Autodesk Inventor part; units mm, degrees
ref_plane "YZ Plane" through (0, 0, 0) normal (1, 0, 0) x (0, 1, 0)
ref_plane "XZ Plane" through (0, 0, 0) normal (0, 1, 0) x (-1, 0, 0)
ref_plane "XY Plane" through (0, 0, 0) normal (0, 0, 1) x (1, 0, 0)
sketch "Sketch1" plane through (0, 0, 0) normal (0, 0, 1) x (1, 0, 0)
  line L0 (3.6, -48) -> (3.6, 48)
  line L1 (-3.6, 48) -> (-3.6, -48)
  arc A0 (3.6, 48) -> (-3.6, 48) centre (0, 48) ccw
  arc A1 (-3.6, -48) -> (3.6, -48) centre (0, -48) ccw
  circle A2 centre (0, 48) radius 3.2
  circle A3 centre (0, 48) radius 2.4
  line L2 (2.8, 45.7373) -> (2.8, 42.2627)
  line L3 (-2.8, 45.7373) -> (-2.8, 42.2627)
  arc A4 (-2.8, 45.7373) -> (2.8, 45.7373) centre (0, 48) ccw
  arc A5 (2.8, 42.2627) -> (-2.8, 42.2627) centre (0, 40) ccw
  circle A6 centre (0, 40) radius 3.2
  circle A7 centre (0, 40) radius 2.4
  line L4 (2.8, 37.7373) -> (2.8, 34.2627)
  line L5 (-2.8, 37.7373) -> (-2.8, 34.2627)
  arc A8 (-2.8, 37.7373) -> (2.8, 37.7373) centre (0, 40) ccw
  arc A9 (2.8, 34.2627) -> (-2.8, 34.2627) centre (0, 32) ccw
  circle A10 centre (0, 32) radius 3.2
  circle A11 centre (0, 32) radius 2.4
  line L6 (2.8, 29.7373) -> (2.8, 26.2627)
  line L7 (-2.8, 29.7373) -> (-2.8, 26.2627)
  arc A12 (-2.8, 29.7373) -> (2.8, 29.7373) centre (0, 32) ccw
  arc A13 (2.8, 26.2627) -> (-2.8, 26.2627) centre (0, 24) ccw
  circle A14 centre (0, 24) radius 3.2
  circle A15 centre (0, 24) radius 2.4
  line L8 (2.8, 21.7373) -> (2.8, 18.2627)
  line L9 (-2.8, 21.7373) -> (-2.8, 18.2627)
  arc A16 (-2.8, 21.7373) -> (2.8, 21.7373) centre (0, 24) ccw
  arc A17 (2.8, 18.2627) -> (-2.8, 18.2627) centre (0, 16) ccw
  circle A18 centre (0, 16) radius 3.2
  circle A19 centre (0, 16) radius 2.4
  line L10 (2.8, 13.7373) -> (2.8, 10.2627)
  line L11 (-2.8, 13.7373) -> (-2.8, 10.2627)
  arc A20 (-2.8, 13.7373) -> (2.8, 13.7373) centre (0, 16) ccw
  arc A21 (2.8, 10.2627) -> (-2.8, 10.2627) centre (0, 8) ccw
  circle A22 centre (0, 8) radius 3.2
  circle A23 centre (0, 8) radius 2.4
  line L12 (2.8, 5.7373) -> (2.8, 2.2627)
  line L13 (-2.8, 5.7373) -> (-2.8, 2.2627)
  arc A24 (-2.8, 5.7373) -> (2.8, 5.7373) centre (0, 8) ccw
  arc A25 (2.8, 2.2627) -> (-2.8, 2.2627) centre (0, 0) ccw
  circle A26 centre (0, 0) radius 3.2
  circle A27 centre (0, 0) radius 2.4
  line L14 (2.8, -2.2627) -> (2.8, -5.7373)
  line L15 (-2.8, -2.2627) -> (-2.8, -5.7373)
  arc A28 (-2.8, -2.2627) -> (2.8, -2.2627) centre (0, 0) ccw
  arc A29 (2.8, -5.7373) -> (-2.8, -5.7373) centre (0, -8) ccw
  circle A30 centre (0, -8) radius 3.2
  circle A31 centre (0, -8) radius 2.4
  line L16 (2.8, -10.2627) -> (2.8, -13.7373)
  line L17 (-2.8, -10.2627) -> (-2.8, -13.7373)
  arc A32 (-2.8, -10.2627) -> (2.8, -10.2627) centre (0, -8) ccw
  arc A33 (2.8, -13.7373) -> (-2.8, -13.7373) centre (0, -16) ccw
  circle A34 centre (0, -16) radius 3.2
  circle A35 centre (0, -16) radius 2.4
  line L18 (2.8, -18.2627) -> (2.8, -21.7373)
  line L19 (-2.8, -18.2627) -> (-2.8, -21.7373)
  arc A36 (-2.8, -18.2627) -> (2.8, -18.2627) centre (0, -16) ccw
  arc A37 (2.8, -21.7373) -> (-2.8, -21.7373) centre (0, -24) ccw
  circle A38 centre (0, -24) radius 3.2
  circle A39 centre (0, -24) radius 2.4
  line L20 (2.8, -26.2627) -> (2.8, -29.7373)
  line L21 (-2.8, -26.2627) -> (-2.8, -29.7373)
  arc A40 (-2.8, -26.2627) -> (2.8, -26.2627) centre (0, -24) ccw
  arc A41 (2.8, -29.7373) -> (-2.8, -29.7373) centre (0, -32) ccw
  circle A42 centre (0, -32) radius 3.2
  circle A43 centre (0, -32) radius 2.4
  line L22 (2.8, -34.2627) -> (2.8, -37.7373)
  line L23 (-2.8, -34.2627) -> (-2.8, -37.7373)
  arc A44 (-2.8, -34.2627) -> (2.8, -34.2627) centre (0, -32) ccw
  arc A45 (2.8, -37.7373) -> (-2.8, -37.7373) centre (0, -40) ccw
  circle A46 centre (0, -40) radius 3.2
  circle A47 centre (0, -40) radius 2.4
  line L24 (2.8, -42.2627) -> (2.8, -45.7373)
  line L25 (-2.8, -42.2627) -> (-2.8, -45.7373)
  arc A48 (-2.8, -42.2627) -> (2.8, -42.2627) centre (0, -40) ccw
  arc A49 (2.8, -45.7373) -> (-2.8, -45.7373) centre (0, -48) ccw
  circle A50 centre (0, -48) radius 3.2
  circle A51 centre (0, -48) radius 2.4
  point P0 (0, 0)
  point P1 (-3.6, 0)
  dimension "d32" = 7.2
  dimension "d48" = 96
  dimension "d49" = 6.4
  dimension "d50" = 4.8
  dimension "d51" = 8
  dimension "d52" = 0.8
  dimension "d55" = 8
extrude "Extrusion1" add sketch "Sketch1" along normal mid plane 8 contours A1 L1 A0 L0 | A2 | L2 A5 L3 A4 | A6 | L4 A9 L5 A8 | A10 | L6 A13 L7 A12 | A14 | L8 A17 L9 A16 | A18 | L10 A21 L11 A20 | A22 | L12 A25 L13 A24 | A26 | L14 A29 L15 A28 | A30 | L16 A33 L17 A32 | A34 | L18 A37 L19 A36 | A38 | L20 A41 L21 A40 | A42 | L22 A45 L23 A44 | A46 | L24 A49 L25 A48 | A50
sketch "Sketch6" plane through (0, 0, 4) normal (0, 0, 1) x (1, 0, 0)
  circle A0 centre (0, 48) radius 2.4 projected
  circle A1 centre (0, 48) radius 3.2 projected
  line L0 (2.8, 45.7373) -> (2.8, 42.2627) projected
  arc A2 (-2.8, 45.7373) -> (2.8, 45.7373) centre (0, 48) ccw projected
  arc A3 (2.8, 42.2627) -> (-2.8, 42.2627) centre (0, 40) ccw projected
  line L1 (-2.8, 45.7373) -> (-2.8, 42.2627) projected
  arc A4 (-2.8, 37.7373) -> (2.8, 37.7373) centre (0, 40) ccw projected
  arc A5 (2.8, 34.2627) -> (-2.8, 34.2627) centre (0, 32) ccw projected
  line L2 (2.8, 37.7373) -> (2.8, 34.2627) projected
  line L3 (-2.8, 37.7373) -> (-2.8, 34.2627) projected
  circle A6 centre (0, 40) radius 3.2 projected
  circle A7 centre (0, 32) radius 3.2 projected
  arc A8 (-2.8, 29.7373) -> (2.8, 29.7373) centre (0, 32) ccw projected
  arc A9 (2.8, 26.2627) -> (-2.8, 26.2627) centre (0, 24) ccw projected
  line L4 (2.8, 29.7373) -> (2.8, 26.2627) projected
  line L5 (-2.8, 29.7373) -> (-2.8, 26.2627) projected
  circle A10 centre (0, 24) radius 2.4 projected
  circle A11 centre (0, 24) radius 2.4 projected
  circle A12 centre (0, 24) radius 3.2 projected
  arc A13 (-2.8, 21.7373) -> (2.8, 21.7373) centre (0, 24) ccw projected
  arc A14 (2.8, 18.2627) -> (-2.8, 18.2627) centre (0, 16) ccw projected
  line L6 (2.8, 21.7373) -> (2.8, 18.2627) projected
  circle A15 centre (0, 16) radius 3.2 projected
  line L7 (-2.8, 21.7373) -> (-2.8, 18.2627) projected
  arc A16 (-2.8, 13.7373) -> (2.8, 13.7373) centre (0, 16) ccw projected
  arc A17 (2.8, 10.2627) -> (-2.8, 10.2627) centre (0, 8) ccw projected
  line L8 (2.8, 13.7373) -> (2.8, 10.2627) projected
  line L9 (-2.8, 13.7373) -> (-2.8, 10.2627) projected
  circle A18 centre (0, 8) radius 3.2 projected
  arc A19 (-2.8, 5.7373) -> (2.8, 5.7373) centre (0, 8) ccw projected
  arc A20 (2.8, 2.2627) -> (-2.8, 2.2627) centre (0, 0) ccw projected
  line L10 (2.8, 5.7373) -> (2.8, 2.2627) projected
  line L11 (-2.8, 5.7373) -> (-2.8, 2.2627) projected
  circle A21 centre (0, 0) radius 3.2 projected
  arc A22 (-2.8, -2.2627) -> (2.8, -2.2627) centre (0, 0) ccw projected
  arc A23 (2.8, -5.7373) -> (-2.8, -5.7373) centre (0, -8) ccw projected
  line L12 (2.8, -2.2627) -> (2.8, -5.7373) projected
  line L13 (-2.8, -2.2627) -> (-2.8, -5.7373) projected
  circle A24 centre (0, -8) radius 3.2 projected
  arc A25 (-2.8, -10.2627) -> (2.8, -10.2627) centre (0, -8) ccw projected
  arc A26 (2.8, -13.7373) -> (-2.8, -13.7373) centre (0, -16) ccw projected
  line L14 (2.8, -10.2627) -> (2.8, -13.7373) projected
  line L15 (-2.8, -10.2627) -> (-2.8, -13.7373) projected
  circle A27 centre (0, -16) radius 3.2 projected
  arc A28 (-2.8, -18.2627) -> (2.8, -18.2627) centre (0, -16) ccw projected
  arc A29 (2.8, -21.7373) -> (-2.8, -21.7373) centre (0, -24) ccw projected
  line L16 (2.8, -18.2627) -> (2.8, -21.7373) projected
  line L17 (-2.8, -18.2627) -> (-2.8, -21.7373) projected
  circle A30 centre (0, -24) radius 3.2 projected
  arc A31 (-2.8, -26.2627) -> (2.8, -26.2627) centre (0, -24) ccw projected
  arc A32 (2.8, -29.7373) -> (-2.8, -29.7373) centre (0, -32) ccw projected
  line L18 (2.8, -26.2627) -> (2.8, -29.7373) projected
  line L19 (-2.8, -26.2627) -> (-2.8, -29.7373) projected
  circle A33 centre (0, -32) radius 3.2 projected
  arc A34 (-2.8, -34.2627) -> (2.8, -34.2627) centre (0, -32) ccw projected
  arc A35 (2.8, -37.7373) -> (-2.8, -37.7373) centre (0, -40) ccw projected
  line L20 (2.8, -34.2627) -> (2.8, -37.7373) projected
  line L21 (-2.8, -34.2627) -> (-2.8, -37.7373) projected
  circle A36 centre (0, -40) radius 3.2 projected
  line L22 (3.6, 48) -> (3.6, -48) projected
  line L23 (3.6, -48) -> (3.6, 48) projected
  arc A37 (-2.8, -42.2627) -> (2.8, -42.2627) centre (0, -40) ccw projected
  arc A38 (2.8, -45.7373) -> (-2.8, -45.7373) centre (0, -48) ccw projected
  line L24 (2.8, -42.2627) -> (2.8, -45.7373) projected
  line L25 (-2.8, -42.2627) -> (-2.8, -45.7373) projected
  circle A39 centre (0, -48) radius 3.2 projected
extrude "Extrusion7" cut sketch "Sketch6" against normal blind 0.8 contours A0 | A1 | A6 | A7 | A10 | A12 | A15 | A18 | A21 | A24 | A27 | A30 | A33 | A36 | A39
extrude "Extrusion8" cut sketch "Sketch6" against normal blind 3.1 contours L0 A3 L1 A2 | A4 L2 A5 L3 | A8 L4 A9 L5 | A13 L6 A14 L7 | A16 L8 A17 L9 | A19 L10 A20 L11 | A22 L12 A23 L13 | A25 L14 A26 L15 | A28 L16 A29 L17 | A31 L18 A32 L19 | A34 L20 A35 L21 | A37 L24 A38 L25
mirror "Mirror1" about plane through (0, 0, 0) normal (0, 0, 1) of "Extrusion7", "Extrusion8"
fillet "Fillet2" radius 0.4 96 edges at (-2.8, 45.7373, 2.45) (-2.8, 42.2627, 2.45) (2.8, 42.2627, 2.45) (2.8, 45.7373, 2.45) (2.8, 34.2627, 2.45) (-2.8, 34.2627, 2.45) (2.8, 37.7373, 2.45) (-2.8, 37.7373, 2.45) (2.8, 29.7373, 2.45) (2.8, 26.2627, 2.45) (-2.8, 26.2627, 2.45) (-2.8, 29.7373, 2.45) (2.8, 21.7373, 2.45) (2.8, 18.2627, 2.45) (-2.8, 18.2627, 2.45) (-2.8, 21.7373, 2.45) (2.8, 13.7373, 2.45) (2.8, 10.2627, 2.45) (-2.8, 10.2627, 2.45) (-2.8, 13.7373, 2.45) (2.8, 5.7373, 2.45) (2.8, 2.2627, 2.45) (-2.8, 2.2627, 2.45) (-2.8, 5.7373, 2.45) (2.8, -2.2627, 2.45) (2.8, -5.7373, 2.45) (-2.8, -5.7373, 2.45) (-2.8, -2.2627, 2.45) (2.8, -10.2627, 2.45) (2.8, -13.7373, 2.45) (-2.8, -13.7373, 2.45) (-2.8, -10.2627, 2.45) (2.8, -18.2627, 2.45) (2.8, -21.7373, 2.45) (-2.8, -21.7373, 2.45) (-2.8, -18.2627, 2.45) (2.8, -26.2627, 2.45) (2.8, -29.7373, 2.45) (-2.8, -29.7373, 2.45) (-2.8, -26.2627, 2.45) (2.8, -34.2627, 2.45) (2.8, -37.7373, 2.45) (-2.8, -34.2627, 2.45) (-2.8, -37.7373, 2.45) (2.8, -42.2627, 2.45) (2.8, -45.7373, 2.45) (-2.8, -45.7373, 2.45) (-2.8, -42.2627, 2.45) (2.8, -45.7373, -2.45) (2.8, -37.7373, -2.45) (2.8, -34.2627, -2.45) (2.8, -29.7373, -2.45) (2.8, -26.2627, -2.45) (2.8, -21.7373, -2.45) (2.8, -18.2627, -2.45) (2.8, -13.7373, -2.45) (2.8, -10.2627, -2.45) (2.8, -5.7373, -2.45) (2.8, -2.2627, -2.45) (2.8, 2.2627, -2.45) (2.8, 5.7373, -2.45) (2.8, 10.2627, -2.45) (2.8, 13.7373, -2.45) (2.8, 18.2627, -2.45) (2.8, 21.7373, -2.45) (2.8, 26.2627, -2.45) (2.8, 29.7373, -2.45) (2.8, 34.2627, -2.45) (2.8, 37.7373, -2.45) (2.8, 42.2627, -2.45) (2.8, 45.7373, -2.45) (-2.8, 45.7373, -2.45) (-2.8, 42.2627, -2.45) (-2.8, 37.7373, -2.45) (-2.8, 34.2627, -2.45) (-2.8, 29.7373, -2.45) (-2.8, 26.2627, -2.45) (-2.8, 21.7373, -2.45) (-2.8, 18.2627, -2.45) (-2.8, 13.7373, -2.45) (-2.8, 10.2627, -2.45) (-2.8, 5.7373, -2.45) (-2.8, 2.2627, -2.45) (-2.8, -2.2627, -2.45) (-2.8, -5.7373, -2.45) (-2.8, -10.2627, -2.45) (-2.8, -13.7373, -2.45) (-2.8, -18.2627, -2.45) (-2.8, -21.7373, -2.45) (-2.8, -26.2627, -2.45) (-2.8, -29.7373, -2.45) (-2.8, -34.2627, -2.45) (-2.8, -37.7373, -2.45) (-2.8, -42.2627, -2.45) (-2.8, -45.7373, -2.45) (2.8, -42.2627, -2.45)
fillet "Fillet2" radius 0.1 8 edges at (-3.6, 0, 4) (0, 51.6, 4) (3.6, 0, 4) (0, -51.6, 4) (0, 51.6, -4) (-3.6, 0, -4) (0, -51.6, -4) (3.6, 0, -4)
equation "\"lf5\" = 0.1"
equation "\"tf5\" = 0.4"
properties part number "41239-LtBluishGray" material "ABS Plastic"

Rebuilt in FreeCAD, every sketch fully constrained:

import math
import FreeCAD as App
import Part
import Sketcher


def edges_at(feature, points):
    """Names of the edges that pass closest to the given points."""
    edges = feature.Shape.Edges
    near = lambda p: min(range(len(edges)), key=lambda i: edges[i].distToShape(Part.Vertex(*p))[0])
    return sorted({f"Edge{near(p) + 1}" for p in points})

doc = App.newDocument("Part")
body = doc.addObject("PartDesign::Body", "Body")

sketch1 = body.newObject("Sketcher::SketchObject", "Sketch")
sketch1.AttachmentSupport = (doc.getObject("XY_Plane"), [""])
sketch1.MapMode = "FlatFace"
sketch1.addGeometry([
    Part.ArcOfCircle(Part.Circle(App.Vector(0, -48, 0), App.Vector(0, 0, 1), 3.6), math.radians(180), math.radians(360)),
    Part.LineSegment(App.Vector(3.6, -48, 0), App.Vector(3.6, 48, 0)),
    Part.ArcOfCircle(Part.Circle(App.Vector(0, 48, 0), App.Vector(0, 0, 1), 3.6), math.radians(0), math.radians(180)),
    Part.LineSegment(App.Vector(-3.6, 48, 0), App.Vector(-3.6, -48, 0)),
    Part.Circle(App.Vector(0, -48, 0), App.Vector(0, 0, 1), 2.4),
    Part.Circle(App.Vector(0, -40, 0), App.Vector(0, 0, 1), 2.4),
    Part.Circle(App.Vector(0, -32, 0), App.Vector(0, 0, 1), 2.4),
    Part.Circle(App.Vector(0, -24, 0), App.Vector(0, 0, 1), 2.4),
    Part.Circle(App.Vector(0, -16, 0), App.Vector(0, 0, 1), 2.4),
    Part.Circle(App.Vector(0, -8, 0), App.Vector(0, 0, 1), 2.4),
    Part.Circle(App.Vector(0, 0, 0), App.Vector(0, 0, 1), 2.4),
    Part.Circle(App.Vector(0, 8, 0), App.Vector(0, 0, 1), 2.4),
    Part.Circle(App.Vector(0, 16, 0), App.Vector(0, 0, 1), 2.4),
    Part.Circle(App.Vector(0, 24, 0), App.Vector(0, 0, 1), 2.4),
    Part.Circle(App.Vector(0, 32, 0), App.Vector(0, 0, 1), 2.4),
    Part.Circle(App.Vector(0, 40, 0), App.Vector(0, 0, 1), 2.4),
    Part.Circle(App.Vector(0, 48, 0), App.Vector(0, 0, 1), 2.4),
], False)
sketch1.addConstraint([
    Sketcher.Constraint("Tangent", 0, 2, 1, 1),
    Sketcher.Constraint("Tangent", 1, 2, 2, 1),
    Sketcher.Constraint("Tangent", 2, 2, 3, 1),
    Sketcher.Constraint("Tangent", 3, 2, 0, 1),
    Sketcher.Constraint("Vertical", 1),
    Sketcher.Constraint("Vertical", 3),
    Sketcher.Constraint("Coincident", 10, 3, -1, 1),
    Sketcher.Constraint("Coincident", 4, 3, 0, 3),
    Sketcher.Constraint("Coincident", 16, 3, 2, 3),
    Sketcher.Constraint("Equal", 4, 5),
    Sketcher.Constraint("Equal", 5, 6),
    Sketcher.Constraint("Equal", 6, 7),
    Sketcher.Constraint("Equal", 7, 8),
    Sketcher.Constraint("Equal", 8, 9),
    Sketcher.Constraint("Equal", 9, 10),
    Sketcher.Constraint("Equal", 10, 11),
    Sketcher.Constraint("Equal", 11, 12),
    Sketcher.Constraint("Equal", 12, 13),
    Sketcher.Constraint("Equal", 13, 14),
    Sketcher.Constraint("Equal", 14, 15),
    Sketcher.Constraint("Equal", 15, 16),
    Sketcher.Constraint("Symmetric", 0, 3, 2, 3, -1, 1),
    Sketcher.Constraint("Symmetric", 9, 3, 11, 3, -1, 1),
    Sketcher.Constraint("Symmetric", 8, 3, 12, 3, -1, 1),
    Sketcher.Constraint("Symmetric", 7, 3, 13, 3, -1, 1),
    Sketcher.Constraint("Symmetric", 6, 3, 14, 3, -1, 1),
    Sketcher.Constraint("Symmetric", 5, 3, 15, 3, -1, 1),
    Sketcher.Constraint("PointOnObject", 5, 3, -2),
    Sketcher.Constraint("PointOnObject", 6, 3, -2),
    Sketcher.Constraint("PointOnObject", 7, 3, -2),
    Sketcher.Constraint("PointOnObject", 8, 3, -2),
    Sketcher.Constraint("PointOnObject", 9, 3, -2),
    Sketcher.Constraint("Diameter", 4, 4.8),
    Sketcher.Constraint("Radius", 0, 3.6),
    Sketcher.Constraint("DistanceY", 1, 1, 1, 2, 96.0),
    Sketcher.Constraint("DistanceY", 9, 3, -1, 1, 8.0),
    Sketcher.Constraint("DistanceY", 0, 3, 5, 3, 8.0),
    Sketcher.Constraint("DistanceY", 5, 3, 6, 3, 8.0),
    Sketcher.Constraint("DistanceY", 6, 3, 7, 3, 8.0),
    Sketcher.Constraint("DistanceY", 7, 3, 8, 3, 8.0),
])
pad1 = body.newObject("PartDesign::Pad", "Pad")
pad1.Profile = sketch1
pad1.Length = 8
pad1.Midplane = True

sketch2 = body.newObject("Sketcher::SketchObject", "Sketch001")
sketch2.AttachmentSupport = (doc.getObject("XY_Plane"), [""])
sketch2.MapMode = "FlatFace"
sketch2.AttachmentOffset = App.Placement(App.Vector(0, 0, 4), App.Rotation())
sketch2.addGeometry([
    Part.Circle(App.Vector(0, 48, 0), App.Vector(0, 0, 1), 3.2),
    Part.Circle(App.Vector(0, 40, 0), App.Vector(0, 0, 1), 3.2),
    Part.Circle(App.Vector(0, 32, 0), App.Vector(0, 0, 1), 3.2),
    Part.Circle(App.Vector(0, 24, 0), App.Vector(0, 0, 1), 3.2),
    Part.Circle(App.Vector(0, 16, 0), App.Vector(0, 0, 1), 3.2),
    Part.Circle(App.Vector(0, 8, 0), App.Vector(0, 0, 1), 3.2),
    Part.Circle(App.Vector(0, 0, 0), App.Vector(0, 0, 1), 3.2),
    Part.Circle(App.Vector(0, -8, 0), App.Vector(0, 0, 1), 3.2),
    Part.Circle(App.Vector(0, -16, 0), App.Vector(0, 0, 1), 3.2),
    Part.Circle(App.Vector(0, -24, 0), App.Vector(0, 0, 1), 3.2),
    Part.Circle(App.Vector(0, -32, 0), App.Vector(0, 0, 1), 3.2),
    Part.Circle(App.Vector(0, -40, 0), App.Vector(0, 0, 1), 3.2),
    Part.Circle(App.Vector(0, -48, 0), App.Vector(0, 0, 1), 3.2),
], False)
sketch2.addConstraint([
    Sketcher.Constraint("Coincident", 6, 3, -1, 1),
    Sketcher.Constraint("Equal", 0, 1),
    Sketcher.Constraint("Equal", 1, 2),
    Sketcher.Constraint("Equal", 2, 3),
    Sketcher.Constraint("Equal", 3, 4),
    Sketcher.Constraint("Equal", 4, 5),
    Sketcher.Constraint("Equal", 5, 6),
    Sketcher.Constraint("Equal", 6, 7),
    Sketcher.Constraint("Equal", 7, 8),
    Sketcher.Constraint("Equal", 8, 9),
    Sketcher.Constraint("Equal", 9, 10),
    Sketcher.Constraint("Equal", 10, 11),
    Sketcher.Constraint("Equal", 11, 12),
    Sketcher.Constraint("Symmetric", 5, 3, 7, 3, -1, 1),
    Sketcher.Constraint("Symmetric", 4, 3, 8, 3, -1, 1),
    Sketcher.Constraint("Symmetric", 3, 3, 9, 3, -1, 1),
    Sketcher.Constraint("Symmetric", 2, 3, 10, 3, -1, 1),
    Sketcher.Constraint("Symmetric", 1, 3, 11, 3, -1, 1),
    Sketcher.Constraint("Symmetric", 0, 3, 12, 3, -1, 1),
    Sketcher.Constraint("PointOnObject", 0, 3, -2),
    Sketcher.Constraint("PointOnObject", 1, 3, -2),
    Sketcher.Constraint("PointOnObject", 2, 3, -2),
    Sketcher.Constraint("PointOnObject", 3, 3, -2),
    Sketcher.Constraint("PointOnObject", 4, 3, -2),
    Sketcher.Constraint("PointOnObject", 5, 3, -2),
    Sketcher.Constraint("Diameter", 0, 6.4),
    Sketcher.Constraint("DistanceY", -1, 1, 0, 3, 48.0),
    Sketcher.Constraint("DistanceY", -1, 1, 1, 3, 40.0),
    Sketcher.Constraint("DistanceY", -1, 1, 2, 3, 32.0),
    Sketcher.Constraint("DistanceY", -1, 1, 3, 3, 24.0),
    Sketcher.Constraint("DistanceY", -1, 1, 4, 3, 16.0),
    Sketcher.Constraint("DistanceY", -1, 1, 5, 3, 8.0),
])
pocket1 = body.newObject("PartDesign::Pocket", "Pocket")
pocket1.Profile = sketch2
pocket1.Length = 0.8

sketch3 = body.newObject("Sketcher::SketchObject", "Sketch002")
sketch3.AttachmentSupport = (doc.getObject("XY_Plane"), [""])
sketch3.MapMode = "FlatFace"
sketch3.AttachmentOffset = App.Placement(App.Vector(0, 0, 4), App.Rotation())
sketch3.addGeometry([
    Part.LineSegment(App.Vector(2.8, 42.2627, 0), App.Vector(2.8, 45.7373, 0)),
    Part.ArcOfCircle(Part.Circle(App.Vector(0, 48, 0), App.Vector(0, 0, 1), 3.599974), math.radians(-141.058075), math.radians(-38.941925)),
    Part.LineSegment(App.Vector(-2.8, 45.7373, 0), App.Vector(-2.8, 42.2627, 0)),
    Part.ArcOfCircle(Part.Circle(App.Vector(0, 40, 0), App.Vector(0, 0, 1), 3.599974), math.radians(38.941925), math.radians(141.058075)),
    Part.ArcOfCircle(Part.Circle(App.Vector(0, 40, 0), App.Vector(0, 0, 1), 3.599974), math.radians(-141.058075), math.radians(-38.941925)),
    Part.LineSegment(App.Vector(-2.8, 37.7373, 0), App.Vector(-2.8, 34.2627, 0)),
    Part.ArcOfCircle(Part.Circle(App.Vector(0, 32, 0), App.Vector(0, 0, 1), 3.599974), math.radians(38.941925), math.radians(141.058075)),
    Part.LineSegment(App.Vector(2.8, 34.2627, 0), App.Vector(2.8, 37.7373, 0)),
    Part.ArcOfCircle(Part.Circle(App.Vector(0, 32, 0), App.Vector(0, 0, 1), 3.599974), math.radians(-141.058075), math.radians(-38.941925)),
    Part.LineSegment(App.Vector(-2.8, 29.7373, 0), App.Vector(-2.8, 26.2627, 0)),
    Part.ArcOfCircle(Part.Circle(App.Vector(0, 24, 0), App.Vector(0, 0, 1), 3.599974), math.radians(38.941925), math.radians(141.058075)),
    Part.LineSegment(App.Vector(2.8, 26.2627, 0), App.Vector(2.8, 29.7373, 0)),
    Part.ArcOfCircle(Part.Circle(App.Vector(0, 24, 0), App.Vector(0, 0, 1), 3.599974), math.radians(-141.058075), math.radians(-38.941925)),
    Part.LineSegment(App.Vector(-2.8, 21.7373, 0), App.Vector(-2.8, 18.2627, 0)),
    Part.ArcOfCircle(Part.Circle(App.Vector(0, 16, 0), App.Vector(0, 0, 1), 3.599974), math.radians(38.941925), math.radians(141.058075)),
    Part.LineSegment(App.Vector(2.8, 18.2627, 0), App.Vector(2.8, 21.7373, 0)),
    Part.ArcOfCircle(Part.Circle(App.Vector(0, 16, 0), App.Vector(0, 0, 1), 3.599974), math.radians(-141.058075), math.radians(-38.941925)),
    Part.LineSegment(App.Vector(-2.8, 13.7373, 0), App.Vector(-2.8, 10.2627, 0)),
    Part.ArcOfCircle(Part.Circle(App.Vector(0, 8, 0), App.Vector(0, 0, 1), 3.599974), math.radians(38.941925), math.radians(141.058075)),
    Part.LineSegment(App.Vector(2.8, 10.2627, 0), App.Vector(2.8, 13.7373, 0)),
    Part.ArcOfCircle(Part.Circle(App.Vector(0, 8, 0), App.Vector(0, 0, 1), 3.599974), math.radians(-141.058075), math.radians(-38.941925)),
    Part.LineSegment(App.Vector(-2.8, 5.7373, 0), App.Vector(-2.8, 2.2627, 0)),
    Part.ArcOfCircle(Part.Circle(App.Vector(0, 0, 0), App.Vector(0, 0, 1), 3.599974), math.radians(38.941925), math.radians(141.058075)),
    Part.LineSegment(App.Vector(2.8, 2.2627, 0), App.Vector(2.8, 5.7373, 0)),
    Part.ArcOfCircle(Part.Circle(App.Vector(0, 0, 0), App.Vector(0, 0, 1), 3.599974), math.radians(-141.058075), math.radians(-38.941925)),
    Part.LineSegment(App.Vector(-2.8, -2.2627, 0), App.Vector(-2.8, -5.7373, 0)),
    Part.ArcOfCircle(Part.Circle(App.Vector(0, -8, 0), App.Vector(0, 0, 1), 3.599974), math.radians(38.941925), math.radians(141.058075)),
    Part.LineSegment(App.Vector(2.8, -5.7373, 0), App.Vector(2.8, -2.2627, 0)),
    Part.ArcOfCircle(Part.Circle(App.Vector(0, -8, 0), App.Vector(0, 0, 1), 3.599974), math.radians(-141.058075), math.radians(-38.941925)),
    Part.LineSegment(App.Vector(-2.8, -10.2627, 0), App.Vector(-2.8, -13.7373, 0)),
    Part.ArcOfCircle(Part.Circle(App.Vector(0, -16, 0), App.Vector(0, 0, 1), 3.599974), math.radians(38.941925), math.radians(141.058075)),
    Part.LineSegment(App.Vector(2.8, -13.7373, 0), App.Vector(2.8, -10.2627, 0)),
    Part.ArcOfCircle(Part.Circle(App.Vector(0, -16, 0), App.Vector(0, 0, 1), 3.599974), math.radians(-141.058075), math.radians(-38.941925)),
    Part.LineSegment(App.Vector(-2.8, -18.2627, 0), App.Vector(-2.8, -21.7373, 0)),
    Part.ArcOfCircle(Part.Circle(App.Vector(0, -24, 0), App.Vector(0, 0, 1), 3.599974), math.radians(38.941925), math.radians(141.058075)),
    Part.LineSegment(App.Vector(2.8, -21.7373, 0), App.Vector(2.8, -18.2627, 0)),
    Part.ArcOfCircle(Part.Circle(App.Vector(0, -24, 0), App.Vector(0, 0, 1), 3.599974), math.radians(-141.058075), math.radians(-38.941925)),
    Part.LineSegment(App.Vector(-2.8, -26.2627, 0), App.Vector(-2.8, -29.7373, 0)),
    Part.ArcOfCircle(Part.Circle(App.Vector(0, -32, 0), App.Vector(0, 0, 1), 3.599974), math.radians(38.941925), math.radians(141.058075)),
    Part.LineSegment(App.Vector(2.8, -29.7373, 0), App.Vector(2.8, -26.2627, 0)),
    Part.ArcOfCircle(Part.Circle(App.Vector(0, -32, 0), App.Vector(0, 0, 1), 3.599974), math.radians(-141.058075), math.radians(-38.941925)),
    Part.LineSegment(App.Vector(-2.8, -34.2627, 0), App.Vector(-2.8, -37.7373, 0)),
    Part.ArcOfCircle(Part.Circle(App.Vector(0, -40, 0), App.Vector(0, 0, 1), 3.599974), math.radians(38.941925), math.radians(141.058075)),
    Part.LineSegment(App.Vector(2.8, -37.7373, 0), App.Vector(2.8, -34.2627, 0)),
    Part.ArcOfCircle(Part.Circle(App.Vector(0, -40, 0), App.Vector(0, 0, 1), 3.599974), math.radians(-141.058075), math.radians(-38.941925)),
    Part.LineSegment(App.Vector(-2.8, -42.2627, 0), App.Vector(-2.8, -45.7373, 0)),
    Part.ArcOfCircle(Part.Circle(App.Vector(0, -48, 0), App.Vector(0, 0, 1), 3.599974), math.radians(38.941925), math.radians(141.058075)),
    Part.LineSegment(App.Vector(2.8, -45.7373, 0), App.Vector(2.8, -42.2627, 0)),
], False)
sketch3.addConstraint([
    Sketcher.Constraint("Coincident", 0, 2, 1, 2),
    Sketcher.Constraint("Coincident", 1, 1, 2, 1),
    Sketcher.Constraint("Coincident", 2, 2, 3, 2),
    Sketcher.Constraint("Coincident", 3, 1, 0, 1),
    Sketcher.Constraint("Coincident", 4, 1, 5, 1),
    Sketcher.Constraint("Coincident", 5, 2, 6, 2),
    Sketcher.Constraint("Coincident", 6, 1, 7, 1),
    Sketcher.Constraint("Coincident", 7, 2, 4, 2),
    Sketcher.Constraint("Coincident", 8, 1, 9, 1),
    Sketcher.Constraint("Coincident", 9, 2, 10, 2),
    Sketcher.Constraint("Coincident", 10, 1, 11, 1),
    Sketcher.Constraint("Coincident", 11, 2, 8, 2),
    Sketcher.Constraint("Coincident", 12, 1, 13, 1),
    Sketcher.Constraint("Coincident", 13, 2, 14, 2),
    Sketcher.Constraint("Coincident", 14, 1, 15, 1),
    Sketcher.Constraint("Coincident", 15, 2, 12, 2),
    Sketcher.Constraint("Coincident", 16, 1, 17, 1),
    Sketcher.Constraint("Coincident", 17, 2, 18, 2),
    Sketcher.Constraint("Coincident", 18, 1, 19, 1),
    Sketcher.Constraint("Coincident", 19, 2, 16, 2),
    Sketcher.Constraint("Coincident", 20, 1, 21, 1),
    Sketcher.Constraint("Coincident", 21, 2, 22, 2),
    Sketcher.Constraint("Coincident", 22, 1, 23, 1),
    Sketcher.Constraint("Coincident", 23, 2, 20, 2),
    Sketcher.Constraint("Coincident", 24, 1, 25, 1),
    Sketcher.Constraint("Coincident", 25, 2, 26, 2),
    Sketcher.Constraint("Coincident", 26, 1, 27, 1),
    Sketcher.Constraint("Coincident", 27, 2, 24, 2),
    Sketcher.Constraint("Coincident", 28, 1, 29, 1),
    Sketcher.Constraint("Coincident", 29, 2, 30, 2),
    Sketcher.Constraint("Coincident", 30, 1, 31, 1),
    Sketcher.Constraint("Coincident", 31, 2, 28, 2),
    Sketcher.Constraint("Coincident", 32, 1, 33, 1),
    Sketcher.Constraint("Coincident", 33, 2, 34, 2),
    Sketcher.Constraint("Coincident", 34, 1, 35, 1),
    Sketcher.Constraint("Coincident", 35, 2, 32, 2),
    Sketcher.Constraint("Coincident", 36, 1, 37, 1),
    Sketcher.Constraint("Coincident", 37, 2, 38, 2),
    Sketcher.Constraint("Coincident", 38, 1, 39, 1),
    Sketcher.Constraint("Coincident", 39, 2, 36, 2),
    Sketcher.Constraint("Coincident", 40, 1, 41, 1),
    Sketcher.Constraint("Coincident", 41, 2, 42, 2),
    Sketcher.Constraint("Coincident", 42, 1, 43, 1),
    Sketcher.Constraint("Coincident", 43, 2, 40, 2),
    Sketcher.Constraint("Coincident", 44, 1, 45, 1),
    Sketcher.Constraint("Coincident", 45, 2, 46, 2),
    Sketcher.Constraint("Coincident", 46, 1, 47, 1),
    Sketcher.Constraint("Coincident", 47, 2, 44, 2),
    Sketcher.Constraint("Vertical", 0),
    Sketcher.Constraint("Vertical", 2),
    Sketcher.Constraint("Vertical", 5),
    Sketcher.Constraint("Vertical", 7),
    Sketcher.Constraint("Vertical", 9),
    Sketcher.Constraint("Vertical", 11),
    Sketcher.Constraint("Vertical", 13),
    Sketcher.Constraint("Vertical", 15),
    Sketcher.Constraint("Vertical", 17),
    Sketcher.Constraint("Vertical", 19),
    Sketcher.Constraint("Vertical", 21),
    Sketcher.Constraint("Vertical", 23),
    Sketcher.Constraint("Vertical", 25),
    Sketcher.Constraint("Vertical", 27),
    Sketcher.Constraint("Vertical", 29),
    Sketcher.Constraint("Vertical", 31),
    Sketcher.Constraint("Vertical", 33),
    Sketcher.Constraint("Vertical", 35),
    Sketcher.Constraint("Vertical", 37),
    Sketcher.Constraint("Vertical", 39),
    Sketcher.Constraint("Vertical", 41),
    Sketcher.Constraint("Vertical", 43),
    Sketcher.Constraint("Vertical", 45),
    Sketcher.Constraint("Vertical", 47),
    Sketcher.Constraint("Coincident", 22, 3, -1, 1),
    Sketcher.Constraint("Coincident", 24, 3, -1, 1),
    Sketcher.Constraint("Coincident", 4, 3, 3, 3),
    Sketcher.Constraint("Coincident", 8, 3, 6, 3),
    Sketcher.Constraint("Coincident", 12, 3, 10, 3),
    Sketcher.Constraint("Coincident", 16, 3, 14, 3),
    Sketcher.Constraint("Coincident", 20, 3, 18, 3),
    Sketcher.Constraint("Coincident", 28, 3, 26, 3),
    Sketcher.Constraint("Coincident", 32, 3, 30, 3),
    Sketcher.Constraint("Coincident", 36, 3, 34, 3),
    Sketcher.Constraint("Coincident", 40, 3, 38, 3),
    Sketcher.Constraint("Coincident", 44, 3, 42, 3),
    Sketcher.Constraint("Equal", 1, 3),
    Sketcher.Constraint("Equal", 3, 4),
    Sketcher.Constraint("Equal", 4, 6),
    Sketcher.Constraint("Equal", 6, 8),
    Sketcher.Constraint("Equal", 8, 10),
    Sketcher.Constraint("Equal", 10, 12),
    Sketcher.Constraint("Equal", 12, 14),
    Sketcher.Constraint("Equal", 14, 16),
    Sketcher.Constraint("Equal", 16, 18),
    Sketcher.Constraint("Equal", 18, 20),
    Sketcher.Constraint("Equal", 20, 22),
    Sketcher.Constraint("Equal", 22, 24),
    Sketcher.Constraint("Equal", 24, 26),
    Sketcher.Constraint("Equal", 26, 28),
    Sketcher.Constraint("Equal", 28, 30),
    Sketcher.Constraint("Equal", 30, 32),
    Sketcher.Constraint("Equal", 32, 34),
    Sketcher.Constraint("Equal", 34, 36),
    Sketcher.Constraint("Equal", 36, 38),
    Sketcher.Constraint("Equal", 38, 40),
    Sketcher.Constraint("Equal", 40, 42),
    Sketcher.Constraint("Equal", 42, 44),
    Sketcher.Constraint("Equal", 44, 46),
    Sketcher.Constraint("Symmetric", 18, 3, 26, 3, -1, 1),
    Sketcher.Constraint("Symmetric", 14, 3, 30, 3, -1, 1),
    Sketcher.Constraint("Symmetric", 10, 3, 34, 3, -1, 1),
    Sketcher.Constraint("Symmetric", 6, 3, 38, 3, -1, 1),
    Sketcher.Constraint("Symmetric", 3, 3, 42, 3, -1, 1),
    Sketcher.Constraint("Symmetric", 1, 3, 46, 3, -1, 1),
    Sketcher.Constraint("Symmetric", 0, 2, 1, 1, -2),
    Sketcher.Constraint("Symmetric", 5, 2, 6, 1, -2),
    Sketcher.Constraint("Symmetric", 9, 2, 10, 1, -2),
    Sketcher.Constraint("Symmetric", 13, 2, 14, 1, -2),
    Sketcher.Constraint("Symmetric", 17, 2, 18, 1, -2),
    Sketcher.Constraint("Symmetric", 41, 2, 42, 1, -2),
    Sketcher.Constraint("Horizontal", 21, 2, 22, 1),
    Sketcher.Constraint("Horizontal", 25, 2, 26, 1),
    Sketcher.Constraint("Horizontal", 29, 2, 30, 1),
    Sketcher.Constraint("Horizontal", 33, 2, 34, 1),
    Sketcher.Constraint("Horizontal", 37, 2, 38, 1),
    Sketcher.Constraint("Horizontal", 45, 2, 46, 1),
    Sketcher.Constraint("Vertical", 2, 2, 4, 1),
    Sketcher.Constraint("Vertical", 5, 2, 8, 1),
    Sketcher.Constraint("Vertical", 9, 2, 12, 1),
    Sketcher.Constraint("Vertical", 13, 2, 16, 1),
    Sketcher.Constraint("Vertical", 17, 2, 20, 1),
    Sketcher.Constraint("Vertical", 21, 2, 24, 1),
    Sketcher.Constraint("Vertical", 25, 2, 28, 1),
    Sketcher.Constraint("Vertical", 29, 2, 32, 1),
    Sketcher.Constraint("Vertical", 33, 2, 36, 1),
    Sketcher.Constraint("Vertical", 37, 2, 40, 1),
    Sketcher.Constraint("Vertical", 41, 2, 44, 1),
    Sketcher.Constraint("Equal", 2, 5),
    Sketcher.Constraint("Equal", 7, 9),
    Sketcher.Constraint("Equal", 11, 13),
    Sketcher.Constraint("Equal", 15, 17),
    Sketcher.Constraint("Equal", 19, 21),
    Sketcher.Constraint("Radius", 1, 3.6),
    Sketcher.Constraint("DistanceY", -1, 1, 1, 3, 48.0),
    Sketcher.Constraint("DistanceX", -1, 1, 0, 2, 2.8),
])
pocket2 = body.newObject("PartDesign::Pocket", "Pocket001")
pocket2.Profile = sketch3
pocket2.Length = 3.1
doc.recompute()

mirrored = body.newObject("PartDesign::Mirrored", "Mirrored")
mirrored.Originals = [pocket1, pocket2]
mirrored.MirrorPlane = (doc.getObject("XY_Plane"), [""])
body.Tip = mirrored
doc.recompute()

fillet = body.newObject("PartDesign::Fillet", "Fillet")
fillet.Base = (mirrored, edges_at(mirrored, [
    (-2.8, 45.737, 2.45),
    (-2.8, 42.263, 2.45),
    (2.8, 42.263, 2.45),
    (2.8, 45.737, 2.45),
    (2.8, 34.263, 2.45),
    (-2.8, 34.263, 2.45),
    (2.8, 37.737, 2.45),
    (-2.8, 37.737, 2.45),
    (2.8, 29.737, 2.45),
    (2.8, 26.263, 2.45),
    (-2.8, 26.263, 2.45),
    (-2.8, 29.737, 2.45),
    (2.8, 21.737, 2.45),
    (2.8, 18.263, 2.45),
    (-2.8, 18.263, 2.45),
    (-2.8, 21.737, 2.45),
    (2.8, 13.737, 2.45),
    (2.8, 10.263, 2.45),
    (-2.8, 10.263, 2.45),
    (-2.8, 13.737, 2.45),
    (2.8, 5.737, 2.45),
    (2.8, 2.263, 2.45),
    (-2.8, 2.263, 2.45),
    (-2.8, 5.737, 2.45),
    (2.8, -2.263, 2.45),
    (2.8, -5.737, 2.45),
    (-2.8, -5.737, 2.45),
    (-2.8, -2.263, 2.45),
    (2.8, -10.263, 2.45),
    (2.8, -13.737, 2.45),
    (-2.8, -13.737, 2.45),
    (-2.8, -10.263, 2.45),
    (2.8, -18.263, 2.45),
    (2.8, -21.737, 2.45),
    (-2.8, -21.737, 2.45),
    (-2.8, -18.263, 2.45),
    (2.8, -26.263, 2.45),
    (2.8, -29.737, 2.45),
    (-2.8, -29.737, 2.45),
    (-2.8, -26.263, 2.45),
    (2.8, -34.263, 2.45),
    (2.8, -37.737, 2.45),
    (-2.8, -34.263, 2.45),
    (-2.8, -37.737, 2.45),
    (2.8, -42.263, 2.45),
    (2.8, -45.737, 2.45),
    (-2.8, -45.737, 2.45),
    (-2.8, -42.263, 2.45),
    (2.8, -45.737, -2.45),
    (2.8, -37.737, -2.45),
    (2.8, -34.263, -2.45),
    (2.8, -29.737, -2.45),
    (2.8, -26.263, -2.45),
    (2.8, -21.737, -2.45),
    (2.8, -18.263, -2.45),
    (2.8, -13.737, -2.45),
    (2.8, -10.263, -2.45),
    (2.8, -5.737, -2.45),
    (2.8, -2.263, -2.45),
    (2.8, 2.263, -2.45),
    (2.8, 5.737, -2.45),
    (2.8, 10.263, -2.45),
    (2.8, 13.737, -2.45),
    (2.8, 18.263, -2.45),
    (2.8, 21.737, -2.45),
    (2.8, 26.263, -2.45),
    (2.8, 29.737, -2.45),
    (2.8, 34.263, -2.45),
    (2.8, 37.737, -2.45),
    (2.8, 42.263, -2.45),
    (2.8, 45.737, -2.45),
    (-2.8, 45.737, -2.45),
    (-2.8, 42.263, -2.45),
    (-2.8, 37.737, -2.45),
    (-2.8, 34.263, -2.45),
    (-2.8, 29.737, -2.45),
    (-2.8, 26.263, -2.45),
    (-2.8, 21.737, -2.45),
    (-2.8, 18.263, -2.45),
    (-2.8, 13.737, -2.45),
    (-2.8, 10.263, -2.45),
    (-2.8, 5.737, -2.45),
    (-2.8, 2.263, -2.45),
    (-2.8, -2.263, -2.45),
    (-2.8, -5.737, -2.45),
    (-2.8, -10.263, -2.45),
    (-2.8, -13.737, -2.45),
    (-2.8, -18.263, -2.45),
    (-2.8, -21.737, -2.45),
    (-2.8, -26.263, -2.45),
    (-2.8, -29.737, -2.45),
    (-2.8, -34.263, -2.45),
    (-2.8, -37.737, -2.45),
    (-2.8, -42.263, -2.45),
    (-2.8, -45.737, -2.45),
    (2.8, -42.263, -2.45),
]))
fillet.Radius = 0.4
doc.recompute()

fillet2 = body.newObject("PartDesign::Fillet", "Fillet001")
fillet2.Base = (fillet, edges_at(fillet, [
    (-3.6, 0, 4),
    (0, 51.6, 4),
    (3.6, 0, 4),
    (0, -51.6, 4),
    (0, 51.6, -4),
    (-3.6, 0, -4),
    (0, -51.6, -4),
    (3.6, 0, -4),
]))
fillet2.Radius = 0.1

doc.recompute()
